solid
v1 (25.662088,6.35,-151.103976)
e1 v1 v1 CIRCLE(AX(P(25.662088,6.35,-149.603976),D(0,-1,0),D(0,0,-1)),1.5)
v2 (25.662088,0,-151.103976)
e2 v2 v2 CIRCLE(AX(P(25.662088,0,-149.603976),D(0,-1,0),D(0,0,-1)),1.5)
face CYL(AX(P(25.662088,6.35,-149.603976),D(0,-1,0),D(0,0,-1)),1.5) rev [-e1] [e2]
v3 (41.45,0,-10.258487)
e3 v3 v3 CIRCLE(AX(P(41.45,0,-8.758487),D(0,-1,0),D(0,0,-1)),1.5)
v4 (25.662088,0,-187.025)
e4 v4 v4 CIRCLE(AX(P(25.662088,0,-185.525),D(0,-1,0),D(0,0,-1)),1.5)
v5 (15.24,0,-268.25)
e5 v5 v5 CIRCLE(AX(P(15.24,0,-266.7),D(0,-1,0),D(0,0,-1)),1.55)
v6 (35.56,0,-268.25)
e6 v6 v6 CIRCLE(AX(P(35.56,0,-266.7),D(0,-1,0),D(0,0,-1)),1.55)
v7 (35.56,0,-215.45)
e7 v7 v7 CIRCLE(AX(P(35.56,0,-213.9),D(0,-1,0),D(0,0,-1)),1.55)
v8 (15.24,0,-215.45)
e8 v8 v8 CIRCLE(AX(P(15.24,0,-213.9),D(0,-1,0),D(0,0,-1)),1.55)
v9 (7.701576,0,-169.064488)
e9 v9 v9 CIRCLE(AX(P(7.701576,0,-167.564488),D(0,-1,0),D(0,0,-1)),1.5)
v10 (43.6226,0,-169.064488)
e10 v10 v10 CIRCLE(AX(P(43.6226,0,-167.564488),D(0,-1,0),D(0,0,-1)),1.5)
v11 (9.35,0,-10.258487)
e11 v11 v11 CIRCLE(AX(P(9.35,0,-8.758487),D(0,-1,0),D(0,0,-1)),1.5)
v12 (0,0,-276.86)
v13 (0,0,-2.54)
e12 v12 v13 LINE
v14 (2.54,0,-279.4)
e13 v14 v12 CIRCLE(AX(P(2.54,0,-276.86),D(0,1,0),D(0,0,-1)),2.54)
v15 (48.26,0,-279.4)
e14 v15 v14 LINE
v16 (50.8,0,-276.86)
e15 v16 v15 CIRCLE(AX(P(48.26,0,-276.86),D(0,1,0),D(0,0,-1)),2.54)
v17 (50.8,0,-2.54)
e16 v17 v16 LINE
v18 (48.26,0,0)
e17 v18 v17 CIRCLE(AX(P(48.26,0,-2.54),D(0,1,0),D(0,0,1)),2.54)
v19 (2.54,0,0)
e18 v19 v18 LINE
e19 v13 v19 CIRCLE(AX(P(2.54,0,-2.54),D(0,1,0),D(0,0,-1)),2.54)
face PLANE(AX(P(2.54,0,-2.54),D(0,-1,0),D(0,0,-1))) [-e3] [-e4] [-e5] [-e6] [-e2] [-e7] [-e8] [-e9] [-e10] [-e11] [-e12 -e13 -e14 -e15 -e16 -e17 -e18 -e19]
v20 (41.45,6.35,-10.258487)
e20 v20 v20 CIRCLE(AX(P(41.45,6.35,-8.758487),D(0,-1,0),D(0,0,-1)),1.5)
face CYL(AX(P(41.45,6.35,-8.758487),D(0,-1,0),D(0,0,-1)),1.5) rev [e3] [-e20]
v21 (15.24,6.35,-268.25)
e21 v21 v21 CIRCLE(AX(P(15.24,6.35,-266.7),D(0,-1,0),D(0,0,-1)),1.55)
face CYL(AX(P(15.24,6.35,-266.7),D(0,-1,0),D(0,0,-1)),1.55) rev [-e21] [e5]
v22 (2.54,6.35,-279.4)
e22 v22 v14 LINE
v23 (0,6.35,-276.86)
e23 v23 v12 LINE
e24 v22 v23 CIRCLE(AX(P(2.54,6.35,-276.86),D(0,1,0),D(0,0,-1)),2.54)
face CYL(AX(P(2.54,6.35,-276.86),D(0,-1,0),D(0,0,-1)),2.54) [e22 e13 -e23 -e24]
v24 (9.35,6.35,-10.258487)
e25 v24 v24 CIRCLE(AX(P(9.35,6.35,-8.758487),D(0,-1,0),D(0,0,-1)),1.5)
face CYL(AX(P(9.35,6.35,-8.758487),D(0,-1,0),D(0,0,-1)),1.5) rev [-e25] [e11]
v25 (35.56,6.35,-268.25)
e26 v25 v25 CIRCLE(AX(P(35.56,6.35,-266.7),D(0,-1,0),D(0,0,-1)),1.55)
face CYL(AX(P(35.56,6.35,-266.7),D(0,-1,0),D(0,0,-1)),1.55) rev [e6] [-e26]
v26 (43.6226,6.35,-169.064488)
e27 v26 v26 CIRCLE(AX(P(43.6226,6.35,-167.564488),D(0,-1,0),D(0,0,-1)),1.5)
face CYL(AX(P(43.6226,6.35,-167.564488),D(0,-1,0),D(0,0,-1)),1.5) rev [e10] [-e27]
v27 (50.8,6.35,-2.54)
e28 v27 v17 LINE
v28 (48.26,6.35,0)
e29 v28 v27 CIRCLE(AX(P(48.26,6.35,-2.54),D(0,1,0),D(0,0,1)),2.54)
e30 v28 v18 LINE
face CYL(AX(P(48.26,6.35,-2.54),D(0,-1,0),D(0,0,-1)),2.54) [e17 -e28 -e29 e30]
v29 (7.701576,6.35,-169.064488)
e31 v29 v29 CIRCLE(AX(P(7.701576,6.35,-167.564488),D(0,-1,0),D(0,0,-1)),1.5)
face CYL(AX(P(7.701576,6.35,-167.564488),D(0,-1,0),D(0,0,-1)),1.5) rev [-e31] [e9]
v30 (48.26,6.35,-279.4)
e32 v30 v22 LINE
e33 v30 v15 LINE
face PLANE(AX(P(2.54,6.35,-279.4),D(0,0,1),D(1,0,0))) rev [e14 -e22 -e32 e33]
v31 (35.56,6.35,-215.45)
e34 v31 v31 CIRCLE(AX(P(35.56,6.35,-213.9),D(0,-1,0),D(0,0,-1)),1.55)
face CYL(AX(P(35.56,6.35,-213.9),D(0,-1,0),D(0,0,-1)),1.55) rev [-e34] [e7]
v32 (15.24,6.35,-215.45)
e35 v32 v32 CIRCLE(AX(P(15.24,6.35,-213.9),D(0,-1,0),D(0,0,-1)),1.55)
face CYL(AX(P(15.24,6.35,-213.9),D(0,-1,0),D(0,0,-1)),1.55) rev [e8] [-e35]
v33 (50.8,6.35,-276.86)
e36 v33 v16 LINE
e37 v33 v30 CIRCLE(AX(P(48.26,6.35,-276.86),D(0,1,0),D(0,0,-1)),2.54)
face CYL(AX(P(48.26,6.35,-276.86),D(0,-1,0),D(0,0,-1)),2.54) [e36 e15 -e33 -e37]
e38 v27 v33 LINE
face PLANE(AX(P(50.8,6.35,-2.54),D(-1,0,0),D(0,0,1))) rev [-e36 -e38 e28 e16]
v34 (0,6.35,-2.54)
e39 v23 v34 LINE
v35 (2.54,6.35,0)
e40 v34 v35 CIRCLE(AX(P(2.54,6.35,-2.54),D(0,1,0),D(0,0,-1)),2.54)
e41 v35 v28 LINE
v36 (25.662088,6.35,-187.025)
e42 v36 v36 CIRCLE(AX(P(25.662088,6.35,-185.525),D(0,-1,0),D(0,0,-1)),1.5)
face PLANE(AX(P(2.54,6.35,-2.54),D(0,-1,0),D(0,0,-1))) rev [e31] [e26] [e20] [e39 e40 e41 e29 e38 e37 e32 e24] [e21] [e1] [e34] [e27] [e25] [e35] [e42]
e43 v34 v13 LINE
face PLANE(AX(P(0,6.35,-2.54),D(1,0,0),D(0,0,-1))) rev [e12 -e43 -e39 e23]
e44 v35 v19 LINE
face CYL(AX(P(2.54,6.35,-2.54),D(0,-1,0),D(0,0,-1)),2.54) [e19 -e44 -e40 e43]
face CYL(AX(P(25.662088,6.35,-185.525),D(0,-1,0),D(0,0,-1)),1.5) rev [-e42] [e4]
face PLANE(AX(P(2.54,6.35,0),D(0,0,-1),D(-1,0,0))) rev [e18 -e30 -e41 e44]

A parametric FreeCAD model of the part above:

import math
import FreeCAD as App
import Part
import Sketcher
from FreeCAD import Vector
Q = App.Units.Quantity

doc = App.newDocument("Part")
body = doc.addObject("PartDesign::Body", "Body")

# Sketch on XZ plane
sketch1 = body.newObject("Sketcher::SketchObject", "Sketch")
sketch1.AttachmentSupport = (doc.getObject("XZ_Plane"), [""])
sketch1.MapMode = "FlatFace"
sketch1.addGeometry([
    Part.LineSegment(Vector(2.5, 0, 0), Vector(48.3, 0, 0)),  # 0
    Part.ArcOfCircle(Part.Circle(Vector(48.3, -2.5, 0), Vector(0, 0, 1), 2.5), math.radians(0), math.radians(90)),  # 1
    Part.LineSegment(Vector(50.8, -2.5, 0), Vector(50.8, -276.9, 0)),  # 2
    Part.ArcOfCircle(Part.Circle(Vector(48.3, -276.9, 0), Vector(0, 0, 1), 2.5), math.radians(-90), math.radians(0)),  # 3
    Part.LineSegment(Vector(48.3, -279.4, 0), Vector(2.5, -279.4, 0)),  # 4
    Part.ArcOfCircle(Part.Circle(Vector(2.5, -276.9, 0), Vector(0, 0, 1), 2.5), math.radians(-180), math.radians(-90)),  # 5
    Part.LineSegment(Vector(0, -276.9, 0), Vector(0, -2.5, 0)),  # 6
    Part.ArcOfCircle(Part.Circle(Vector(2.5, -2.5, 0), Vector(0, 0, 1), 2.5), math.radians(90), math.radians(180)),  # 7
], False)
sketch1.addConstraint([
    Sketcher.Constraint("Tangent", 0, 2, 1, 2),
    Sketcher.Constraint("Tangent", 1, 1, 2, 1),
    Sketcher.Constraint("Tangent", 2, 2, 3, 2),
    Sketcher.Constraint("Tangent", 3, 1, 4, 1),
    Sketcher.Constraint("Tangent", 4, 2, 5, 2),
    Sketcher.Constraint("Tangent", 5, 1, 6, 1),
    Sketcher.Constraint("Tangent", 6, 2, 7, 2),
    Sketcher.Constraint("Tangent", 7, 1, 0, 1),
    Sketcher.Constraint("Horizontal", 0),
    Sketcher.Constraint("Vertical", 2),
    Sketcher.Constraint("Horizontal", 4),
    Sketcher.Constraint("Vertical", 6),
    Sketcher.Constraint("Equal", 1, 3),
    Sketcher.Constraint("Equal", 3, 5),
    Sketcher.Constraint("Equal", 5, 7),
    Sketcher.Constraint("PointOnObject", 0, 2, -1),
    Sketcher.Constraint("PointOnObject", 5, 1, -2),
    Sketcher.Constraint("Radius", 1, Q("0.1 in")),
    Sketcher.Constraint("DistanceX", 0, 1, 0, 2, Q("1.8 in")),
    Sketcher.Constraint("DistanceY", 2, 2, 2, 1, Q("10.8 in")),
])
pad1 = body.newObject("PartDesign::Pad", "Pad")
pad1.Profile = sketch1
pad1.Length = Q("0.25 in")
pad1.Reversed = True

# Sketch on XZ plane
sketch2 = body.newObject("Sketcher::SketchObject", "Sketch001")
sketch2.AttachmentSupport = (doc.getObject("XZ_Plane"), [""])
sketch2.MapMode = "FlatFace"
sketch2.addGeometry([
    Part.Circle(Vector(25.7, -185.5, 0), Vector(0, 0, 1), 1.5),  # 0
    Part.Circle(Vector(43.6, -167.6, 0), Vector(0, 0, 1), 1.5),  # 1
    Part.Circle(Vector(7.7, -167.6, 0), Vector(0, 0, 1), 1.5),  # 2
    Part.Circle(Vector(25.7, -149.6, 0), Vector(0, 0, 1), 1.5),  # 3
    Part.Circle(Vector(41.5, -8.8, 0), Vector(0, 0, 1), 1.5),  # 4
    Part.Circle(Vector(9.3, -8.8, 0), Vector(0, 0, 1), 1.5),  # 5
], False)
sketch2.addConstraint([
    Sketcher.Constraint("Equal", 0, 1),
    Sketcher.Constraint("Equal", 1, 2),
    Sketcher.Constraint("Equal", 2, 3),
    Sketcher.Constraint("Equal", 3, 4),
    Sketcher.Constraint("Equal", 4, 5),
    Sketcher.Constraint("Horizontal", 1, 3, 2, 3),
    Sketcher.Constraint("Horizontal", 4, 3, 5, 3),
    Sketcher.Constraint("Vertical", 0, 3, 3, 3),
    Sketcher.Constraint("Diameter", 0, 3.0),
    Sketcher.Constraint("DistanceY", 0, 3, -1, 1, 185.525),
    Sketcher.Constraint("DistanceX", -1, 1, 1, 3, 43.6226),
    Sketcher.Constraint("DistanceX", -1, 1, 4, 3, 41.45),
    Sketcher.Constraint("DistanceX", -1, 1, 5, 3, 9.35),
    Sketcher.Constraint("DistanceY", 1, 3, 4, 3, 158.806001),
    Sketcher.Constraint("DistanceY", 3, 3, 4, 3, 140.845488),
    Sketcher.Constraint("DistanceX", -1, 1, 0, 3, 25.662088),
    Sketcher.Constraint("DistanceY", 1, 3, -1, 1, 167.564488),
    Sketcher.Constraint("DistanceX", -1, 1, 2, 3, 7.701576),
])
pocket1 = body.newObject("PartDesign::Pocket", "Pocket")
pocket1.Profile = sketch2
pocket1.Length = Q("0.25 in")

# Sketch on XZ plane
sketch3 = body.newObject("Sketcher::SketchObject", "Sketch002")
sketch3.AttachmentSupport = (doc.getObject("XZ_Plane"), [""])
sketch3.MapMode = "FlatFace"
sketch3.addGeometry([
    Part.Circle(Vector(15.2, -266.7, 0), Vector(0, 0, 1), 1.6),
    Part.Circle(Vector(35.6, -266.7, 0), Vector(0, 0, 1), 1.6),
    Part.Circle(Vector(15.2, -213.9, 0), Vector(0, 0, 1), 1.6),
    Part.Circle(Vector(35.6, -213.9, 0), Vector(0, 0, 1), 1.6),
], False)
sketch3.addConstraint([
    Sketcher.Constraint("Equal", 0, 1),
    Sketcher.Constraint("Equal", 1, 2),
    Sketcher.Constraint("Equal", 2, 3),
    Sketcher.Constraint("Horizontal", 0, 3, 1, 3),
    Sketcher.Constraint("Horizontal", 2, 3, 3, 3),
    Sketcher.Constraint("Vertical", 0, 3, 2, 3),
    Sketcher.Constraint("Vertical", 1, 3, 3, 3),
    Sketcher.Constraint("DistanceX", -1, 1, 0, 3, Q("0.6 in")),
    Sketcher.Constraint("DistanceY", 0, 3, -1, 1, Q("10.5 in")),
    Sketcher.Constraint("DistanceX", -1, 1, 1, 3, Q("1.4 in")),
    Sketcher.Constraint("Diameter", 0, 3.1),
    Sketcher.Constraint("DistanceY", 2, 3, -1, 1, 213.9),
])
pocket2 = body.newObject("PartDesign::Pocket", "Pocket001")
pocket2.Profile = sketch3
pocket2.Length = Q("0.25 in")

doc.recompute()
